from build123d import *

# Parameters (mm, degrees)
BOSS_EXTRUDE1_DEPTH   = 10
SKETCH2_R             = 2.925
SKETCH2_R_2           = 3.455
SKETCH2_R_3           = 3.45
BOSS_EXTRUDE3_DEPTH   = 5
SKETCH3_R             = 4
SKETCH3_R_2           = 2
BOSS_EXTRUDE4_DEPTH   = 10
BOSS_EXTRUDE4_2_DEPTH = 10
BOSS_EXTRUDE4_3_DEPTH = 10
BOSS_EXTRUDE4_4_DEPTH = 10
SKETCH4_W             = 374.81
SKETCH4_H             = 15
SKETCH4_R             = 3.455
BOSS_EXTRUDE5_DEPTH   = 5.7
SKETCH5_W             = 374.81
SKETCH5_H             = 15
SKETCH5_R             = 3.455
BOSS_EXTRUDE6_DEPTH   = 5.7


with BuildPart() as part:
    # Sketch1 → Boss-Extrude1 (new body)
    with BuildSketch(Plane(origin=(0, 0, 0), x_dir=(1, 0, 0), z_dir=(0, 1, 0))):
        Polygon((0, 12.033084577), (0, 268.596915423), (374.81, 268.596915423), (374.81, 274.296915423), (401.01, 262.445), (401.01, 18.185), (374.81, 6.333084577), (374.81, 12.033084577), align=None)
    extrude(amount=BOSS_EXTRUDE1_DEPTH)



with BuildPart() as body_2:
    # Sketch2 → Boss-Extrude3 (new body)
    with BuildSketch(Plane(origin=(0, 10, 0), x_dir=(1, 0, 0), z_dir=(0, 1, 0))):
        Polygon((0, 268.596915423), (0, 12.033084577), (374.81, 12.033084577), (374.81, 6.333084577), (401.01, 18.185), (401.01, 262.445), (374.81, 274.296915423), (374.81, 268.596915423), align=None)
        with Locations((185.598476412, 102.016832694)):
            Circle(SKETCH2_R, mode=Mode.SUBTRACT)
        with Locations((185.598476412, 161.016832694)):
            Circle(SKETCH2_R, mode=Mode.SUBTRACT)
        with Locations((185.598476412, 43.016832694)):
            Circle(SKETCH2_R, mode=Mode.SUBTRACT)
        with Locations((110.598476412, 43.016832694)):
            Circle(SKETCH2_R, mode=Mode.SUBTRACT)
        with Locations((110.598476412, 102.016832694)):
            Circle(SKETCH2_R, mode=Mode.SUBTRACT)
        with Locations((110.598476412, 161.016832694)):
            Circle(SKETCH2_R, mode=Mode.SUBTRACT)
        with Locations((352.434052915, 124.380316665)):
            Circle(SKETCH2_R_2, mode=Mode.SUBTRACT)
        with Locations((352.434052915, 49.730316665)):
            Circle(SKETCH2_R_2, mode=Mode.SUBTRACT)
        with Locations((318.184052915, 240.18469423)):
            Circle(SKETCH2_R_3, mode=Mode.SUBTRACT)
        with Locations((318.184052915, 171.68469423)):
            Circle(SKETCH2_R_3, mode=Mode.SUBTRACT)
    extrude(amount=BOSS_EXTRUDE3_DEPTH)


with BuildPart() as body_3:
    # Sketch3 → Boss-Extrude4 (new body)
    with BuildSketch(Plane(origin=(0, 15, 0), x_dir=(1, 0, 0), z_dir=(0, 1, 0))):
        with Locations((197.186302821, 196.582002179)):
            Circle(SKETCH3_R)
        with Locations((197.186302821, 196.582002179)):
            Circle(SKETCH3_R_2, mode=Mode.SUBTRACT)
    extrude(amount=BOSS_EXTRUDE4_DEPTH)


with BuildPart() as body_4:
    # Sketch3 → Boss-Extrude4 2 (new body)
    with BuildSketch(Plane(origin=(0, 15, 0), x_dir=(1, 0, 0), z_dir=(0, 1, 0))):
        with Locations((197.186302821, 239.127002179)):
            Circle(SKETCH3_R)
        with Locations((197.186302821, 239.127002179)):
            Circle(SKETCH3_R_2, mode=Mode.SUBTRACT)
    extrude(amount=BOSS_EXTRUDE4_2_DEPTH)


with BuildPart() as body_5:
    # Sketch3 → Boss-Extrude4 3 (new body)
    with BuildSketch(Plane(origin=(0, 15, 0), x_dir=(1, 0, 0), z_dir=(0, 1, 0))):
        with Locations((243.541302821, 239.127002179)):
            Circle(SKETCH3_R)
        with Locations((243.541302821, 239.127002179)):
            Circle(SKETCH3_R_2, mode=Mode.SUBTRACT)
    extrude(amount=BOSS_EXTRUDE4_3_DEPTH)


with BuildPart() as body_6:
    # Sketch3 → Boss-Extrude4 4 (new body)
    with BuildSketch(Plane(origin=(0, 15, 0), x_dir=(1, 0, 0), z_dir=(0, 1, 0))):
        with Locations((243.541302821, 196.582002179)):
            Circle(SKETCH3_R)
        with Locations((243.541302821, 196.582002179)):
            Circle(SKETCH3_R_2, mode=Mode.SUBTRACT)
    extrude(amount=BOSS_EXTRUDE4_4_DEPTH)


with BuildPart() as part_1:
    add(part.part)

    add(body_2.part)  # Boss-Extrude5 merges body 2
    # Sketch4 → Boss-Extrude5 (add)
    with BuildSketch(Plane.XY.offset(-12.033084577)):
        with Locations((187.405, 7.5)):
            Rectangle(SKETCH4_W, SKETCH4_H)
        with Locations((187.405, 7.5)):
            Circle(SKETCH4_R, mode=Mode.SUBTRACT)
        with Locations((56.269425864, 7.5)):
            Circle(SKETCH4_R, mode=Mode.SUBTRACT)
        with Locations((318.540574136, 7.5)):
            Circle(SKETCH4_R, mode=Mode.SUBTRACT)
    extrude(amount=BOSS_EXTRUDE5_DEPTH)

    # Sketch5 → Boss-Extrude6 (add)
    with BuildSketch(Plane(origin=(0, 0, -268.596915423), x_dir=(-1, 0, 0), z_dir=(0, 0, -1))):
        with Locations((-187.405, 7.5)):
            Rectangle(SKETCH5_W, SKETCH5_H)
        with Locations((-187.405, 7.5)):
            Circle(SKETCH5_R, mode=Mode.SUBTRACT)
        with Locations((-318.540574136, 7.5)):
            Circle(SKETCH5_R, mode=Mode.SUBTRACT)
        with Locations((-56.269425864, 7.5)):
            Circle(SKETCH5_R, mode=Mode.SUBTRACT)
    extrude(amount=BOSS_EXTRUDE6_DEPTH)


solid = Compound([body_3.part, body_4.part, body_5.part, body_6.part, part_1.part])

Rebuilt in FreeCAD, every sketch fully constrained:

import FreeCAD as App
import Part
import Sketcher

V = App.Vector

doc = App.newDocument("Part")
body = doc.addObject("PartDesign::Body", "Body")

# Sketch on XZ plane
sketch1 = body.newObject("Sketcher::SketchObject", "Sketch")
sketch1.AttachmentSupport = (doc.getObject("XZ_Plane"), [""])
sketch1.MapMode = "FlatFace"
sketch1.addGeometry([
    Part.LineSegment(V(0, -268.596915, 0), V(0, -12.033085, 0)),  # 0
    Part.LineSegment(V(0, -12.033085, 0), V(374.81, -12.033085, 0)),  # 1
    Part.LineSegment(V(374.81, -12.033085, 0), V(374.81, -6.333085, 0)),  # 2
    Part.LineSegment(V(374.81, -6.333085, 0), V(401.01, -18.185, 0)),  # 3
    Part.LineSegment(V(401.01, -18.185, 0), V(401.01, -262.445, 0)),  # 4
    Part.LineSegment(V(401.01, -262.445, 0), V(374.81, -274.296915, 0)),  # 5
    Part.LineSegment(V(374.81, -274.296915, 0), V(374.81, -268.596915, 0)),  # 6
    Part.LineSegment(V(374.81, -268.596915, 0), V(0, -268.596915, 0)),  # 7
], False)
sketch1.addConstraint([
    Sketcher.Constraint("Coincident", 0, 2, 1, 1),
    Sketcher.Constraint("Coincident", 1, 2, 2, 1),
    Sketcher.Constraint("Coincident", 2, 2, 3, 1),
    Sketcher.Constraint("Coincident", 3, 2, 4, 1),
    Sketcher.Constraint("Coincident", 4, 2, 5, 1),
    Sketcher.Constraint("Coincident", 5, 2, 6, 1),
    Sketcher.Constraint("Coincident", 6, 2, 7, 1),
    Sketcher.Constraint("Coincident", 7, 2, 0, 1),
    Sketcher.Constraint("Vertical", 0),
    Sketcher.Constraint("Horizontal", 1),
    Sketcher.Constraint("Vertical", 2),
    Sketcher.Constraint("Vertical", 4),
    Sketcher.Constraint("Vertical", 6),
    Sketcher.Constraint("Horizontal", 7),
    Sketcher.Constraint("PointOnObject", 0, 2, -2),
    Sketcher.Constraint("Vertical", 2, 2, 5, 2),
    Sketcher.Constraint("Equal", 2, 6),
    Sketcher.Constraint("Equal", 3, 5),
    Sketcher.Constraint("DistanceY", 2, 1, 2, 2, 5.7),
    Sketcher.Constraint("DistanceX", 1, 1, 1, 2, 374.81),
    Sketcher.Constraint("DistanceY", 4, 2, 4, 1, 244.26),
    Sketcher.Constraint("DistanceX", 1, 2, 3, 2, 26.2),
    Sketcher.Constraint("DistanceY", 3, 2, -1, 1, 18.185),
    Sketcher.Constraint("DistanceY", 0, 1, 0, 2, 256.563831),
])
pad1 = body.newObject("PartDesign::Pad", "Pad")
pad1.Profile = sketch1
pad1.Length = 10
pad1.Reversed = True
body2 = doc.addObject("PartDesign::Body", "Body001")

# Sketch on XZ plane
sketch2 = body2.newObject("Sketcher::SketchObject", "Sketch001")
sketch2.AttachmentSupport = (doc.getObject("XZ_Plane001"), [""])
sketch2.MapMode = "FlatFace"
sketch2.AttachmentOffset = App.Placement(V(0, 0, -10), App.Rotation())
sketch2.addGeometry([
    Part.LineSegment(V(0, -268.596915, 0), V(0, -12.033085, 0)),  # 0
    Part.LineSegment(V(0, -12.033085, 0), V(374.81, -12.033085, 0)),  # 1
    Part.LineSegment(V(374.81, -12.033085, 0), V(374.81, -6.333085, 0)),  # 2
    Part.LineSegment(V(374.81, -6.333085, 0), V(401.01, -18.185, 0)),  # 3
    Part.LineSegment(V(401.01, -18.185, 0), V(401.01, -262.445, 0)),  # 4
    Part.LineSegment(V(401.01, -262.445, 0), V(374.81, -274.296915, 0)),  # 5
    Part.LineSegment(V(374.81, -274.296915, 0), V(374.81, -268.596915, 0)),  # 6
    Part.LineSegment(V(374.81, -268.596915, 0), V(0, -268.596915, 0)),  # 7
    Part.Circle(V(110.598476, -43.016833, 0), V(0, 0, 1), 2.925),  # 8
    Part.Circle(V(185.598476, -43.016833, 0), V(0, 0, 1), 2.925),  # 9
    Part.Circle(V(110.598476, -102.016833, 0), V(0, 0, 1), 2.925),  # 10
    Part.Circle(V(185.598476, -102.016833, 0), V(0, 0, 1), 2.925),  # 11
    Part.Circle(V(352.434053, -49.730317, 0), V(0, 0, 1), 3.455),  # 12
    Part.Circle(V(352.434053, -124.380317, 0), V(0, 0, 1), 3.455),  # 13
    Part.Circle(V(110.598476, -161.016833, 0), V(0, 0, 1), 2.925),  # 14
    Part.Circle(V(185.598476, -161.016833, 0), V(0, 0, 1), 2.925),  # 15
    Part.Circle(V(318.184053, -171.684694, 0), V(0, 0, 1), 3.45),  # 16
    Part.Circle(V(318.184053, -240.184694, 0), V(0, 0, 1), 3.45),  # 17
], False)
sketch2.addConstraint([
    Sketcher.Constraint("Coincident", 0, 2, 1, 1),
    Sketcher.Constraint("Coincident", 1, 2, 2, 1),
    Sketcher.Constraint("Coincident", 2, 2, 3, 1),
    Sketcher.Constraint("Coincident", 3, 2, 4, 1),
    Sketcher.Constraint("Coincident", 4, 2, 5, 1),
    Sketcher.Constraint("Coincident", 5, 2, 6, 1),
    Sketcher.Constraint("Coincident", 6, 2, 7, 1),
    Sketcher.Constraint("Coincident", 7, 2, 0, 1),
    Sketcher.Constraint("Vertical", 0),
    Sketcher.Constraint("Horizontal", 1),
    Sketcher.Constraint("Vertical", 2),
    Sketcher.Constraint("Vertical", 4),
    Sketcher.Constraint("Vertical", 6),
    Sketcher.Constraint("Horizontal", 7),
    Sketcher.Constraint("Equal", 8, 9),
    Sketcher.Constraint("Equal", 9, 10),
    Sketcher.Constraint("Equal", 10, 11),
    Sketcher.Constraint("Equal", 12, 13),
    Sketcher.Constraint("Equal", 11, 14),
    Sketcher.Constraint("Equal", 14, 15),
    Sketcher.Constraint("Equal", 16, 17),
    Sketcher.Constraint("PointOnObject", 0, 2, -2),
    Sketcher.Constraint("Horizontal", 8, 3, 9, 3),
    Sketcher.Constraint("Horizontal", 10, 3, 11, 3),
    Sketcher.Constraint("Horizontal", 14, 3, 15, 3),
    Sketcher.Constraint("Vertical", 8, 3, 10, 3),
    Sketcher.Constraint("Vertical", 9, 3, 11, 3),
    Sketcher.Constraint("Vertical", 12, 3, 13, 3),
    Sketcher.Constraint("Vertical", 10, 3, 14, 3),
    Sketcher.Constraint("Vertical", 11, 3, 15, 3),
    Sketcher.Constraint("Vertical", 16, 3, 17, 3),
    Sketcher.Constraint("Vertical", 2, 2, 5, 2),
    Sketcher.Constraint("Equal", 2, 6),
    Sketcher.Constraint("Equal", 3, 5),
    Sketcher.Constraint("Diameter", 16, 6.9),
    Sketcher.Constraint("Diameter", 8, 5.85),
    Sketcher.Constraint("Diameter", 12, 6.91),
    Sketcher.Constraint("DistanceY", 2, 1, 2, 2, 5.7),
    Sketcher.Constraint("DistanceX", 8, 3, 9, 3, 75.0),
    Sketcher.Constraint("DistanceY", 10, 3, 8, 3, 59.0),
    Sketcher.Constraint("DistanceY", 14, 3, 10, 3, 59.0),
    Sketcher.Constraint("DistanceX", 1, 1, 1, 2, 374.81),
    Sketcher.Constraint("DistanceY", 4, 2, 4, 1, 244.26),
    Sketcher.Constraint("DistanceY", 17, 3, 16, 3, 68.5),
    Sketcher.Constraint("DistanceX", 1, 2, 3, 2, 26.2),
    Sketcher.Constraint("DistanceY", 13, 3, 12, 3, 74.65),
    Sketcher.Constraint("DistanceX", 16, 3, 13, 3, 34.25),
    Sketcher.Constraint("DistanceY", 3, 2, -1, 1, 18.185),
    Sketcher.Constraint("DistanceY", 0, 1, 0, 2, 256.563831),
    Sketcher.Constraint("DistanceY", 5, 2, 13, 3, 149.916599),
    Sketcher.Constraint("DistanceY", 16, 3, 15, 3, 10.667862),
    Sketcher.Constraint("DistanceY", 8, 3, 0, 2, 30.983748),
    Sketcher.Constraint("DistanceX", -1, 1, 8, 3, 110.598476),
    Sketcher.Constraint("DistanceX", -1, 1, 12, 3, 352.434053),
])
pad2 = body2.newObject("PartDesign::Pad", "Pad001")
pad2.Profile = sketch2
pad2.Length = 5
pad2.Reversed = True
body3 = doc.addObject("PartDesign::Body", "Body002")

# Sketch on XZ plane
sketch3 = body3.newObject("Sketcher::SketchObject", "Sketch002")
sketch3.AttachmentSupport = (doc.getObject("XZ_Plane002"), [""])
sketch3.MapMode = "FlatFace"
sketch3.AttachmentOffset = App.Placement(V(0, 0, -15), App.Rotation())
sketch3.addGeometry([
    Part.Circle(V(197.186303, -196.582002, 0), V(0, 0, 1), 4),
    Part.Circle(V(197.186303, -196.582002, 0), V(0, 0, 1), 2),
], False)
sketch3.addConstraint([
    Sketcher.Constraint("Coincident", 1, 3, 0, 3),
    Sketcher.Constraint("Diameter", 0, 8.0),
    Sketcher.Constraint("Diameter", 1, 4.0),
    Sketcher.Constraint("DistanceX", -1, 1, 0, 3, 197.186303),
    Sketcher.Constraint("DistanceY", 0, 3, -1, 1, 196.582002),
])
pad3 = body3.newObject("PartDesign::Pad", "Pad002")
pad3.Profile = sketch3
pad3.Length = 10
pad3.Reversed = True
body4 = doc.addObject("PartDesign::Body", "Body003")

# Sketch on XZ plane
sketch4 = body4.newObject("Sketcher::SketchObject", "Sketch003")
sketch4.AttachmentSupport = (doc.getObject("XZ_Plane003"), [""])
sketch4.MapMode = "FlatFace"
sketch4.AttachmentOffset = App.Placement(V(0, 0, -15), App.Rotation())
sketch4.addGeometry([
    Part.Circle(V(197.186303, -239.127002, 0), V(0, 0, 1), 4),
    Part.Circle(V(197.186303, -239.127002, 0), V(0, 0, 1), 2),
], False)
sketch4.addConstraint([
    Sketcher.Constraint("Coincident", 1, 3, 0, 3),
    Sketcher.Constraint("Diameter", 0, 8.0),
    Sketcher.Constraint("Diameter", 1, 4.0),
    Sketcher.Constraint("DistanceX", -1, 1, 0, 3, 197.186303),
    Sketcher.Constraint("DistanceY", 0, 3, -1, 1, 239.127002),
])
pad4 = body4.newObject("PartDesign::Pad", "Pad003")
pad4.Profile = sketch4
pad4.Length = 10
pad4.Reversed = True
body5 = doc.addObject("PartDesign::Body", "Body004")

# Sketch on XZ plane
sketch5 = body5.newObject("Sketcher::SketchObject", "Sketch004")
sketch5.AttachmentSupport = (doc.getObject("XZ_Plane004"), [""])
sketch5.MapMode = "FlatFace"
sketch5.AttachmentOffset = App.Placement(V(0, 0, -15), App.Rotation())
sketch5.addGeometry([
    Part.Circle(V(243.541303, -239.127002, 0), V(0, 0, 1), 4),
    Part.Circle(V(243.541303, -239.127002, 0), V(0, 0, 1), 2),
], False)
sketch5.addConstraint([
    Sketcher.Constraint("Coincident", 1, 3, 0, 3),
    Sketcher.Constraint("Diameter", 0, 8.0),
    Sketcher.Constraint("Diameter", 1, 4.0),
    Sketcher.Constraint("DistanceX", -1, 1, 0, 3, 243.541303),
    Sketcher.Constraint("DistanceY", 0, 3, -1, 1, 239.127002),
])
pad5 = body5.newObject("PartDesign::Pad", "Pad004")
pad5.Profile = sketch5
pad5.Length = 10
pad5.Reversed = True
body6 = doc.addObject("PartDesign::Body", "Body005")

# Sketch on XZ plane
sketch6 = body6.newObject("Sketcher::SketchObject", "Sketch005")
sketch6.AttachmentSupport = (doc.getObject("XZ_Plane005"), [""])
sketch6.MapMode = "FlatFace"
sketch6.AttachmentOffset = App.Placement(V(0, 0, -15), App.Rotation())
sketch6.addGeometry([
    Part.Circle(V(243.541303, -196.582002, 0), V(0, 0, 1), 4),
    Part.Circle(V(243.541303, -196.582002, 0), V(0, 0, 1), 2),
], False)
sketch6.addConstraint([
    Sketcher.Constraint("Coincident", 1, 3, 0, 3),
    Sketcher.Constraint("Diameter", 0, 8.0),
    Sketcher.Constraint("Diameter", 1, 4.0),
    Sketcher.Constraint("DistanceX", -1, 1, 0, 3, 243.541303),
    Sketcher.Constraint("DistanceY", 0, 3, -1, 1, 196.582002),
])
pad6 = body6.newObject("PartDesign::Pad", "Pad005")
pad6.Profile = sketch6
pad6.Length = 10
pad6.Reversed = True
doc.recompute()

boolean = body.newObject("PartDesign::Boolean", "Boolean")
boolean.Type = "Fuse"
boolean.addObjects([body2])

# Sketch on XY plane
sketch7 = body.newObject("Sketcher::SketchObject", "Sketch006")
sketch7.AttachmentSupport = (doc.getObject("XY_Plane"), [""])
sketch7.MapMode = "FlatFace"
sketch7.AttachmentOffset = App.Placement(V(0, 0, -12.033085), App.Rotation())
sketch7.addGeometry([
    Part.LineSegment(V(0, 15, 0), V(0, 0, 0)),  # 0
    Part.LineSegment(V(0, 0, 0), V(374.81, 0, 0)),  # 1
    Part.LineSegment(V(374.81, 0, 0), V(374.81, 15, 0)),  # 2
    Part.LineSegment(V(374.81, 15, 0), V(0, 15, 0)),  # 3
    Part.Circle(V(56.269426, 7.5, 0), V(0, 0, 1), 3.455),  # 4
    Part.Circle(V(187.405, 7.5, 0), V(0, 0, 1), 3.455),  # 5
    Part.Circle(V(318.540574, 7.5, 0), V(0, 0, 1), 3.455),  # 6
], False)
sketch7.addConstraint([
    Sketcher.Constraint("Coincident", 0, 2, 1, 1),
    Sketcher.Constraint("Coincident", 1, 2, 2, 1),
    Sketcher.Constraint("Coincident", 2, 2, 3, 1),
    Sketcher.Constraint("Coincident", 3, 2, 0, 1),
    Sketcher.Constraint("Vertical", 0),
    Sketcher.Constraint("Horizontal", 1),
    Sketcher.Constraint("Vertical", 2),
    Sketcher.Constraint("Horizontal", 3),
    Sketcher.Constraint("Coincident", 0, 2, -1, 1),
    Sketcher.Constraint("Equal", 4, 5),
    Sketcher.Constraint("Equal", 5, 6),
    Sketcher.Constraint("Horizontal", 4, 3, 5, 3),
    Sketcher.Constraint("Horizontal", 5, 3, 6, 3),
    Sketcher.Constraint("Diameter", 4, 6.91),
    Sketcher.Constraint("DistanceY", 0, 2, 0, 1, 15.0),
    Sketcher.Constraint("DistanceX", 1, 1, 1, 2, 374.81),
    Sketcher.Constraint("DistanceY", -1, 1, 4, 3, 7.5),
    Sketcher.Constraint("DistanceX", -1, 1, 5, 3, 187.405),
    Sketcher.Constraint("DistanceX", 4, 3, 6, 3, 262.271148),
    Sketcher.Constraint("DistanceX", -1, 1, 4, 3, 56.269426),
])
pad7 = body.newObject("PartDesign::Pad", "Pad006")
pad7.Profile = sketch7
pad7.Length = 5.7

# Sketch on XY plane
sketch8 = body.newObject("Sketcher::SketchObject", "Sketch007")
sketch8.AttachmentSupport = (doc.getObject("XY_Plane"), [""])
sketch8.MapMode = "FlatFace"
sketch8.AttachmentOffset = App.Placement(V(0, 0, -268.596915), App.Rotation())
sketch8.addGeometry([
    Part.LineSegment(V(374.81, 15, 0), V(374.81, 0, 0)),  # 0
    Part.LineSegment(V(374.81, 0, 0), V(0, 0, 0)),  # 1
    Part.LineSegment(V(0, 0, 0), V(0, 15, 0)),  # 2
    Part.LineSegment(V(0, 15, 0), V(374.81, 15, 0)),  # 3
    Part.Circle(V(318.540574, 7.5, 0), V(0, 0, 1), 3.455),  # 4
    Part.Circle(V(187.405, 7.5, 0), V(0, 0, 1), 3.455),  # 5
    Part.Circle(V(56.269426, 7.5, 0), V(0, 0, 1), 3.455),  # 6
], False)
sketch8.addConstraint([
    Sketcher.Constraint("Coincident", 0, 2, 1, 1),
    Sketcher.Constraint("Coincident", 1, 2, 2, 1),
    Sketcher.Constraint("Coincident", 2, 2, 3, 1),
    Sketcher.Constraint("Coincident", 3, 2, 0, 1),
    Sketcher.Constraint("Vertical", 0),
    Sketcher.Constraint("Horizontal", 1),
    Sketcher.Constraint("Vertical", 2),
    Sketcher.Constraint("Horizontal", 3),
    Sketcher.Constraint("Coincident", 1, 2, -1, 1),
    Sketcher.Constraint("Equal", 4, 5),
    Sketcher.Constraint("Equal", 5, 6),
    Sketcher.Constraint("Horizontal", 4, 3, 5, 3),
    Sketcher.Constraint("Horizontal", 5, 3, 6, 3),
    Sketcher.Constraint("Diameter", 4, 6.91),
    Sketcher.Constraint("DistanceY", 0, 2, 0, 1, 15.0),
    Sketcher.Constraint("DistanceX", 1, 2, 1, 1, 374.81),
    Sketcher.Constraint("DistanceY", -1, 1, 4, 3, 7.5),
    Sketcher.Constraint("DistanceX", -1, 1, 5, 3, 187.405),
    Sketcher.Constraint("DistanceX", 6, 3, 4, 3, 262.271148),
    Sketcher.Constraint("DistanceX", -1, 1, 4, 3, 318.540574),
])
pad8 = body.newObject("PartDesign::Pad", "Pad007")
pad8.Profile = sketch8
pad8.Length = 5.7
pad8.Reversed = True

doc.recompute()
